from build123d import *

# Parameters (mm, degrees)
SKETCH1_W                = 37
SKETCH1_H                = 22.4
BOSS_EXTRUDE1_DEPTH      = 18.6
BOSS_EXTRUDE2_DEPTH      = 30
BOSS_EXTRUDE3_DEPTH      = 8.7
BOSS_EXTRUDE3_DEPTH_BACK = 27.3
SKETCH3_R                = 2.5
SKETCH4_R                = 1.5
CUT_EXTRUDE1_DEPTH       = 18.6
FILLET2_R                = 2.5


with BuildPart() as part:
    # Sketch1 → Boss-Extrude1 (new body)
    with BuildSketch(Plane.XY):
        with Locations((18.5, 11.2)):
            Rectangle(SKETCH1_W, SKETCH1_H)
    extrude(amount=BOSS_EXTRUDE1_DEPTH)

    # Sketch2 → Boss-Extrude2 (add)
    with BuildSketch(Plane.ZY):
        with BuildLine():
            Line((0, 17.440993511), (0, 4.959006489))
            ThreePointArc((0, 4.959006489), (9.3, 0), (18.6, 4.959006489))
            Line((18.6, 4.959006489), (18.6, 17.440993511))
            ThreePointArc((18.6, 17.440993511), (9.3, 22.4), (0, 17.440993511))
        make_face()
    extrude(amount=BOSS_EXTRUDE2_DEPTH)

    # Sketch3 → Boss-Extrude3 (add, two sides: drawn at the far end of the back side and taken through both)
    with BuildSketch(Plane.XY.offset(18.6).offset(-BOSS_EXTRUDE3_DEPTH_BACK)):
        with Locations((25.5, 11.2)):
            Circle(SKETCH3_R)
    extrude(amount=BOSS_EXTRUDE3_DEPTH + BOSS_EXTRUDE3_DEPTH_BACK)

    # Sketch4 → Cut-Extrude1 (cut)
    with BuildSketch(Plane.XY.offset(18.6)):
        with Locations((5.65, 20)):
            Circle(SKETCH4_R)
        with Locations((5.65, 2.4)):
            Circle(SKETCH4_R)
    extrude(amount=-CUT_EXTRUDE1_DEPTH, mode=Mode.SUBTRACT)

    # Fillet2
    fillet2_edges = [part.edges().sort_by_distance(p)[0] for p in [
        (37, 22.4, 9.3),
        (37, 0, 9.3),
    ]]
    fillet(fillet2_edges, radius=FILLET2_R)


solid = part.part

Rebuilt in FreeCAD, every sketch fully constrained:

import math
import FreeCAD as App
import Part
import Sketcher
from FreeCAD import Vector
Q = App.Units.Quantity


def edges_at(feature, points):
    """Names of the edges that pass closest to the given points."""
    edges = feature.Shape.Edges
    near = lambda p: min(range(len(edges)), key=lambda i: edges[i].distToShape(Part.Vertex(*p))[0])
    return sorted({f"Edge{near(p) + 1}" for p in points})


def add_polygon(sketch, points):
    """Adds a closed chain of lines whose ends are joined by coincident constraints."""
    first, n = sketch.GeometryCount, len(points)
    for a, b in zip(points, points[1:] + points[:1]):
        sketch.addGeometry(Part.LineSegment(App.Vector(*a, 0), App.Vector(*b, 0)), False)
    for i in range(n):
        sketch.addConstraint(Sketcher.Constraint("Coincident", first + i, 2, first + (i + 1) % n, 1))

doc = App.newDocument("Part")
body = doc.addObject("PartDesign::Body", "Body")

sketch1 = body.newObject("Sketcher::SketchObject", "Sketch")
sketch1.AttachmentSupport = (doc.getObject("XY_Plane"), [""])
sketch1.MapMode = "FlatFace"
add_polygon(sketch1, [(0, 22), (0, 0), (37, 0), (37, 22)])
sketch1.addConstraint([
    Sketcher.Constraint("Vertical", 0),
    Sketcher.Constraint("Horizontal", 1),
    Sketcher.Constraint("Vertical", 2),
    Sketcher.Constraint("Horizontal", 3),
    Sketcher.Constraint("Coincident", 0, 2, -1, 1),
    Sketcher.Constraint("DistanceX", 1, 1, 1, 2, Q("37 mm")),
    Sketcher.Constraint("DistanceY", 0, 2, 0, 1, Q("22.4 mm")),
])
pad1 = body.newObject("PartDesign::Pad", "Pad")
pad1.Profile = sketch1
pad1.Length = 18.6

sketch2 = body.newObject("Sketcher::SketchObject", "Sketch001")
sketch2.AttachmentSupport = (doc.getObject("YZ_Plane"), [""])
sketch2.MapMode = "FlatFace"
sketch2.addGeometry([
    Part.LineSegment(Vector(17, 0, 0), Vector(5, 0, 0)),
    Part.ArcOfCircle(Part.Circle(Vector(11, 9, 0), Vector(0, 0, 1), 11), math.radians(124), math.radians(236)),
    Part.LineSegment(Vector(5, 19, 0), Vector(17, 19, 0)),
    Part.ArcOfCircle(Part.Circle(Vector(11, 9, 0), Vector(0, 0, 1), 11), math.radians(-56), math.radians(56)),
], False)
sketch2.addConstraint([
    Sketcher.Constraint("Coincident", 0, 2, 1, 2),
    Sketcher.Constraint("Coincident", 1, 1, 2, 1),
    Sketcher.Constraint("Coincident", 2, 2, 3, 2),
    Sketcher.Constraint("Coincident", 3, 1, 0, 1),
    Sketcher.Constraint("Horizontal", 0),
    Sketcher.Constraint("Horizontal", 2),
    Sketcher.Constraint("Coincident", 3, 3, 1, 3),
    Sketcher.Constraint("Equal", 1, 3),
    Sketcher.Constraint("PointOnObject", 0, 2, -1),
    Sketcher.Constraint("Vertical", 0, 2, 1, 1),
    Sketcher.Constraint("Radius", 1, Q("11.2 mm")),
    Sketcher.Constraint("DistanceX", -1, 1, 1, 3, Q("11.2 mm")),
    Sketcher.Constraint("DistanceY", -1, 1, 1, 3, Q("9.3 mm")),
])
pad2 = body.newObject("PartDesign::Pad", "Pad001")
pad2.Profile = sketch2
pad2.Length = 30
pad2.Reversed = True

sketch3 = body.newObject("Sketcher::SketchObject", "Sketch002")
sketch3.AttachmentSupport = (doc.getObject("XY_Plane"), [""])
sketch3.MapMode = "FlatFace"
sketch3.AttachmentOffset = App.Placement(Vector(0, 0, 18.6), App.Rotation())
sketch3.addGeometry(Part.Circle(Vector(25.5, 11.2, 0), Vector(0, 0, 1), 2.5), False)
sketch3.addConstraint([
    Sketcher.Constraint("Diameter", 0, Q("5 mm")),
    Sketcher.Constraint("DistanceX", -1, 1, 0, 3, Q("25.5 mm")),
    Sketcher.Constraint("DistanceY", -1, 1, 0, 3, Q("11.2 mm")),
])
pad3 = body.newObject("PartDesign::Pad", "Pad002")
pad3.Profile = sketch3
pad3.Type = "TwoLengths"
pad3.Length = 8.7
pad3.Length2 = 27.3

sketch4 = body.newObject("Sketcher::SketchObject", "Sketch003")
sketch4.AttachmentSupport = (doc.getObject("XY_Plane"), [""])
sketch4.MapMode = "FlatFace"
sketch4.AttachmentOffset = App.Placement(Vector(0, 0, 18.6), App.Rotation())
sketch4.addGeometry([
    Part.Circle(Vector(5.7, 20, 0), Vector(0, 0, 1), 1.5),
    Part.Circle(Vector(5.7, 2.4, 0), Vector(0, 0, 1), 1.5),
], False)
sketch4.addConstraint([
    Sketcher.Constraint("Equal", 0, 1),
    Sketcher.Constraint("Vertical", 0, 3, 1, 3),
    Sketcher.Constraint("Diameter", 0, Q("3 mm")),
    Sketcher.Constraint("DistanceY", -1, 1, 0, 3, Q("20 mm")),
    Sketcher.Constraint("DistanceY", -1, 1, 1, 3, Q("2.4 mm")),
    Sketcher.Constraint("DistanceX", -1, 1, 0, 3, Q("5.65 mm")),
])
pocket1 = body.newObject("PartDesign::Pocket", "Pocket")
pocket1.Profile = sketch4
pocket1.Length = 18.6
doc.recompute()

fillet = body.newObject("PartDesign::Fillet", "Fillet")
fillet.Base = (pocket1, edges_at(pocket1, [(37, 22.4, 9.3), (37, 0, 9.3)]))
fillet.Radius = 2.5

doc.recompute()
